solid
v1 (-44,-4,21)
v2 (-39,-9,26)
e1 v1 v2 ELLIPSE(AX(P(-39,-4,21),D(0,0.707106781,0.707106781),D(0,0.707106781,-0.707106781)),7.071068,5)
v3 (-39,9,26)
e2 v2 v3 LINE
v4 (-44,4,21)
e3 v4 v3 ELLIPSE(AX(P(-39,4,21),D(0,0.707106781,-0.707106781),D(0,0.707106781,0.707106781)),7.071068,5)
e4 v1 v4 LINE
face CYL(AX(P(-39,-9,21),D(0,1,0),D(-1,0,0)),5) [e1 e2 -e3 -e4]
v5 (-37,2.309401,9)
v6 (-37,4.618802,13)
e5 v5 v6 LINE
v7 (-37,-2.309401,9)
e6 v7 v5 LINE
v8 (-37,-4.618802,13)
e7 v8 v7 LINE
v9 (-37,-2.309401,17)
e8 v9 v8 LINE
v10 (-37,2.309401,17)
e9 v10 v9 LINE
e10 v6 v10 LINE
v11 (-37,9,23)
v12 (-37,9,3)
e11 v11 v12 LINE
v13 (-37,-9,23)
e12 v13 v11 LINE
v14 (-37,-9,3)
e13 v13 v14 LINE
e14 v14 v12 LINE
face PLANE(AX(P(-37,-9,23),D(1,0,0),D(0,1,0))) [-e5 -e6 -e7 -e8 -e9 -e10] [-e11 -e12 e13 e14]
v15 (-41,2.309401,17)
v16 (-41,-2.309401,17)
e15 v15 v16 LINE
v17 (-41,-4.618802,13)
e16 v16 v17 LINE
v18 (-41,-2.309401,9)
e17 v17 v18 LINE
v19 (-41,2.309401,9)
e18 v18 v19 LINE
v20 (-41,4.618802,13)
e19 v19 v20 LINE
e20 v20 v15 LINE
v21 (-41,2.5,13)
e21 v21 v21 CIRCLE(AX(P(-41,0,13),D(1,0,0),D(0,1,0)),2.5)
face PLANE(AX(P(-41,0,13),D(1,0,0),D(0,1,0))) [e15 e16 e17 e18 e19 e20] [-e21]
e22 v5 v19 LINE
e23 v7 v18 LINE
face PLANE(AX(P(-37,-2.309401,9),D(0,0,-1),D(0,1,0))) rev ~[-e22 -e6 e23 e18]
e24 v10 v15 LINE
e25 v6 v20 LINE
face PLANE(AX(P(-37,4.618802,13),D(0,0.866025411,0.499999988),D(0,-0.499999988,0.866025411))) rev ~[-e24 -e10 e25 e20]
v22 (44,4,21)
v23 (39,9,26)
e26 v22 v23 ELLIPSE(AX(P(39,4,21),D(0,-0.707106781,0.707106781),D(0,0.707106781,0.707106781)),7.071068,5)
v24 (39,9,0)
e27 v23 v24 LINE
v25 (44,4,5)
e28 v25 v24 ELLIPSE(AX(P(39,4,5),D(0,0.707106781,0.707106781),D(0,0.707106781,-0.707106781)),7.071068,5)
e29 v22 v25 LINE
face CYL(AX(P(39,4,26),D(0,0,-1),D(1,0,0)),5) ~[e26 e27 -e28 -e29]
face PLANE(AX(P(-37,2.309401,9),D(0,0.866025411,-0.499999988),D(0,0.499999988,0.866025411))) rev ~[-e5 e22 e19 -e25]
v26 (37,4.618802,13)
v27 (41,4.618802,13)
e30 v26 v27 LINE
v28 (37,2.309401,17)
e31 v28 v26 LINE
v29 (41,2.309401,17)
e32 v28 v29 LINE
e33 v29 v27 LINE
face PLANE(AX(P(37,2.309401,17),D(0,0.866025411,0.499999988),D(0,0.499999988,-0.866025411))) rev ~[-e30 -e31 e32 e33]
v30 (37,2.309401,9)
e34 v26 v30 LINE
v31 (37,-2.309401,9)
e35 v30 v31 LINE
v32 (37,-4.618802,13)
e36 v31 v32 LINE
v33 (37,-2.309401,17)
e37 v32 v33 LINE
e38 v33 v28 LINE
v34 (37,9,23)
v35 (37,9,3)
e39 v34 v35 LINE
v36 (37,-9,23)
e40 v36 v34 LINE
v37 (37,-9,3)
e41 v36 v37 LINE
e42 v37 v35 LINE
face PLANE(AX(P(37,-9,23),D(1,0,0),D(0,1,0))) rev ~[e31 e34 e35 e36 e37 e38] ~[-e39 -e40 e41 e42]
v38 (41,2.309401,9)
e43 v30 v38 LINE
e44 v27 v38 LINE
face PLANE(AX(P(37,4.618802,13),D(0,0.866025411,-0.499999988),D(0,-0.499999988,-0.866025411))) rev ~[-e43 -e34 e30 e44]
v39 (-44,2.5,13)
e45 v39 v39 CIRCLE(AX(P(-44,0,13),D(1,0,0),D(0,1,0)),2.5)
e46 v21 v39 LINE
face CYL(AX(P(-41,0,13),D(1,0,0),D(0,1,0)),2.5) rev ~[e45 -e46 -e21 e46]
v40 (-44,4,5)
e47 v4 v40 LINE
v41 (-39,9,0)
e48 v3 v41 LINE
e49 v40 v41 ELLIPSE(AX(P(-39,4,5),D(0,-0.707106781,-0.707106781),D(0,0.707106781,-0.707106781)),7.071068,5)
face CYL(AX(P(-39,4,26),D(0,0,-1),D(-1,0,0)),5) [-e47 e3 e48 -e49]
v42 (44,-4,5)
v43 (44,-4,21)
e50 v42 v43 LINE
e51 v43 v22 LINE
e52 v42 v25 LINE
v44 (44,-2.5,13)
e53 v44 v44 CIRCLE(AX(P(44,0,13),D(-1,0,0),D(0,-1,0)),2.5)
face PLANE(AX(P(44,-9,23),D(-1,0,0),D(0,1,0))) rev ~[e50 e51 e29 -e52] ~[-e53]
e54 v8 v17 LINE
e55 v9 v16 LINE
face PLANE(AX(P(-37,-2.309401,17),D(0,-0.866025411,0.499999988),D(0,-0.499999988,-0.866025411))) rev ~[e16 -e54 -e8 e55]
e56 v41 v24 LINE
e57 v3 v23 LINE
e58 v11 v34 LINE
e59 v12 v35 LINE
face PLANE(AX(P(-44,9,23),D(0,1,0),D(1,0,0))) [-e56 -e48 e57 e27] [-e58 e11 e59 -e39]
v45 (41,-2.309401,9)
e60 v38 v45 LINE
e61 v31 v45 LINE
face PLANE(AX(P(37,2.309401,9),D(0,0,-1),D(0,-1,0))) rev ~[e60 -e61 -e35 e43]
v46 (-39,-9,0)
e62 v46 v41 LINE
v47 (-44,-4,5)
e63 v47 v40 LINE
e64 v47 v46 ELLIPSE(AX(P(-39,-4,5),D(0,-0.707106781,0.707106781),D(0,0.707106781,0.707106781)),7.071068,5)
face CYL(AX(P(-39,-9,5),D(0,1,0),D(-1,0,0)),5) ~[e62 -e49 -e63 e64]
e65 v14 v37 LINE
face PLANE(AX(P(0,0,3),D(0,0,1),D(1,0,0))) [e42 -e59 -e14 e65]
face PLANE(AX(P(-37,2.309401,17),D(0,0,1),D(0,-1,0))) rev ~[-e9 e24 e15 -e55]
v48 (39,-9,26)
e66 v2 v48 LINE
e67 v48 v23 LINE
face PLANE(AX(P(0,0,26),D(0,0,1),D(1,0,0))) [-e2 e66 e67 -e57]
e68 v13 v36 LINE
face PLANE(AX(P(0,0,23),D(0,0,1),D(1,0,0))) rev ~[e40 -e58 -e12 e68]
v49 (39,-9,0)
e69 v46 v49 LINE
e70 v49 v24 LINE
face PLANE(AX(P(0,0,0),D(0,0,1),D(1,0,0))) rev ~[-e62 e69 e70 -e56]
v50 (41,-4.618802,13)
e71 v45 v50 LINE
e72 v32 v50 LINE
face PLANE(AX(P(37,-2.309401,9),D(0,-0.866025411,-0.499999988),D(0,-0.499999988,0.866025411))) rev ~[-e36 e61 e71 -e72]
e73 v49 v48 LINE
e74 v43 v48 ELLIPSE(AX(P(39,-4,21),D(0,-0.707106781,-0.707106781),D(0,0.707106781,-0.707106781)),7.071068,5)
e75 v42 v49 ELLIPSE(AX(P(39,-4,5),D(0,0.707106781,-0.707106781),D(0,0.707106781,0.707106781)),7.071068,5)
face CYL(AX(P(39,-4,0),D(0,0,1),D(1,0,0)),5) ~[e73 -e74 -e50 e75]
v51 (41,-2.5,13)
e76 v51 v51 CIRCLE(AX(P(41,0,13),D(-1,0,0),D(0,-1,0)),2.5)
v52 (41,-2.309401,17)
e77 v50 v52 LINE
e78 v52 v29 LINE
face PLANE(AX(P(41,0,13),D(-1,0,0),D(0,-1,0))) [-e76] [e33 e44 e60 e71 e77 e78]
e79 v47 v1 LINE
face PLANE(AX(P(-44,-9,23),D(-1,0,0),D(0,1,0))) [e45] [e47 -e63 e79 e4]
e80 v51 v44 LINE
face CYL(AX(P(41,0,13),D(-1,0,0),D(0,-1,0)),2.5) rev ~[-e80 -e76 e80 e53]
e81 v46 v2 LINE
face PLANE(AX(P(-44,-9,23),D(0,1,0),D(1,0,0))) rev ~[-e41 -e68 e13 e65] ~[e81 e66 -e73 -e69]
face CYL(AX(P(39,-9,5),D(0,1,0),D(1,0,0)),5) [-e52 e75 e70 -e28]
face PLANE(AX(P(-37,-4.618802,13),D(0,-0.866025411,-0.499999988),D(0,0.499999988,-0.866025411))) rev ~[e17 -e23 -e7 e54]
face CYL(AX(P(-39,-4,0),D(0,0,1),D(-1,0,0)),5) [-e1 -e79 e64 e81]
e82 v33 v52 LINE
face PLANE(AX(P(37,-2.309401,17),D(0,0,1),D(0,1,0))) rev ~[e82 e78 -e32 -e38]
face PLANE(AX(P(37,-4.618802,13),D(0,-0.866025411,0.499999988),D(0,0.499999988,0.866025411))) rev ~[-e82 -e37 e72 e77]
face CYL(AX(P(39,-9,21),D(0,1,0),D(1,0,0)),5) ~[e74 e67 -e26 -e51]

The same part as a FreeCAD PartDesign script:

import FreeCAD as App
import Part
import Sketcher
from FreeCAD import Vector
Q = App.Units.Quantity


def edges_at(feature, points):
    """Names of the edges that pass closest to the given points."""
    edges = feature.Shape.Edges
    near = lambda p: min(range(len(edges)), key=lambda i: edges[i].distToShape(Part.Vertex(*p))[0])
    return sorted({f"Edge{near(p) + 1}" for p in points})

doc = App.newDocument("Part")
body = doc.addObject("PartDesign::Body", "Body")

# Sketch on XY plane
sketch1 = body.newObject("Sketcher::SketchObject", "Sketch")
sketch1.AttachmentSupport = (doc.getObject("XY_Plane"), [""])
sketch1.MapMode = "FlatFace"
sketch1.addGeometry([
    Part.LineSegment(Vector(-44, 9, 0), Vector(-44, -9, 0)),
    Part.LineSegment(Vector(-44, -9, 0), Vector(44, -9, 0)),
    Part.LineSegment(Vector(44, -9, 0), Vector(44, 9, 0)),
    Part.LineSegment(Vector(44, 9, 0), Vector(-44, 9, 0)),
], False)
sketch1.addConstraint([
    Sketcher.Constraint("Coincident", 0, 2, 1, 1),
    Sketcher.Constraint("Coincident", 1, 2, 2, 1),
    Sketcher.Constraint("Coincident", 2, 2, 3, 1),
    Sketcher.Constraint("Coincident", 3, 2, 0, 1),
    Sketcher.Constraint("Vertical", 0),
    Sketcher.Constraint("Horizontal", 1),
    Sketcher.Constraint("Vertical", 2),
    Sketcher.Constraint("Horizontal", 3),
    Sketcher.Constraint("Symmetric", 0, 2, 2, 2, -1, 1),
    Sketcher.Constraint("DistanceX", 1, 1, 1, 2, Q("88 mm")),
    Sketcher.Constraint("DistanceY", 0, 2, 0, 1, Q("18 mm")),
])
pad1 = body.newObject("PartDesign::Pad", "Pad")
pad1.Profile = sketch1
pad1.Length = 23

# Sketch on XY plane
sketch2 = body.newObject("Sketcher::SketchObject", "Sketch001")
sketch2.AttachmentSupport = (doc.getObject("XY_Plane"), [""])
sketch2.MapMode = "FlatFace"
sketch2.AttachmentOffset = App.Placement(Vector(0, 0, 23), App.Rotation())
sketch2.addGeometry([
    Part.LineSegment(Vector(-37, 9, 0), Vector(-37, -9, 0)),
    Part.LineSegment(Vector(-37, -9, 0), Vector(37, -9, 0)),
    Part.LineSegment(Vector(37, -9, 0), Vector(37, 9, 0)),
    Part.LineSegment(Vector(37, 9, 0), Vector(-37, 9, 0)),
], False)
sketch2.addConstraint([
    Sketcher.Constraint("Coincident", 0, 2, 1, 1),
    Sketcher.Constraint("Coincident", 1, 2, 2, 1),
    Sketcher.Constraint("Coincident", 2, 2, 3, 1),
    Sketcher.Constraint("Coincident", 3, 2, 0, 1),
    Sketcher.Constraint("Vertical", 0),
    Sketcher.Constraint("Horizontal", 1),
    Sketcher.Constraint("Vertical", 2),
    Sketcher.Constraint("Horizontal", 3),
    Sketcher.Constraint("Symmetric", 0, 2, 2, 2, -1, 1),
    Sketcher.Constraint("DistanceX", 1, 1, 1, 2, Q("74 mm")),
    Sketcher.Constraint("DistanceY", 0, 2, 0, 1, Q("18 mm")),
])
pocket1 = body.newObject("PartDesign::Pocket", "Pocket")
pocket1.Profile = sketch2
pocket1.Length = 20

# Sketch on YZ plane
sketch3 = body.newObject("Sketcher::SketchObject", "Sketch002")
sketch3.AttachmentSupport = (doc.getObject("YZ_Plane"), [""])
sketch3.MapMode = "FlatFace"
sketch3.AttachmentOffset = App.Placement(Vector(0, 0, 37), App.Rotation())
sketch3.addGeometry([
    Part.LineSegment(Vector(2.309401, 9, 0), Vector(-2.309401, 9, 0)),  # 0
    Part.LineSegment(Vector(-2.309401, 9, 0), Vector(-4.618802, 13, 0)),  # 1
    Part.LineSegment(Vector(-4.618802, 13, 0), Vector(-2.309401, 17, 0)),  # 2
    Part.LineSegment(Vector(-2.309401, 17, 0), Vector(2.309401, 17, 0)),  # 3
    Part.LineSegment(Vector(2.309401, 17, 0), Vector(4.618802, 13, 0)),  # 4
    Part.LineSegment(Vector(4.618802, 13, 0), Vector(2.309401, 9, 0)),  # 5
], False)
sketch3.addConstraint([
    Sketcher.Constraint("Coincident", 0, 2, 1, 1),
    Sketcher.Constraint("Coincident", 1, 2, 2, 1),
    Sketcher.Constraint("Coincident", 2, 2, 3, 1),
    Sketcher.Constraint("Coincident", 3, 2, 4, 1),
    Sketcher.Constraint("Coincident", 4, 2, 5, 1),
    Sketcher.Constraint("Coincident", 5, 2, 0, 1),
    Sketcher.Constraint("Horizontal", 0),
    Sketcher.Constraint("Horizontal", 3),
    Sketcher.Constraint("Symmetric", 1, 2, 4, 2, -2),
    Sketcher.Constraint("Parallel", 1, 4),
    Sketcher.Constraint("Parallel", 2, 5),
    Sketcher.Constraint("Vertical", 0, 2, 2, 2),
    Sketcher.Constraint("Vertical", 3, 2, 5, 2),
    Sketcher.Constraint("Angle", 1, Q("119.999999 deg")),
    Sketcher.Constraint("DistanceY", -1, 1, 0, 2, Q("9 mm")),
    Sketcher.Constraint("DistanceY", -1, 1, 1, 2, Q("13 mm")),
    Sketcher.Constraint("DistanceX", 0, 2, 0, 1, Q("4.618802 mm")),
])
pocket2 = body.newObject("PartDesign::Pocket", "Pocket001")
pocket2.Profile = sketch3
pocket2.Length = 4
pocket2.Reversed = True

# Sketch on YZ plane
sketch4 = body.newObject("Sketcher::SketchObject", "Sketch003")
sketch4.AttachmentSupport = (doc.getObject("YZ_Plane"), [""])
sketch4.MapMode = "FlatFace"
sketch4.AttachmentOffset = App.Placement(Vector(0, 0, -37), App.Rotation())
sketch4.addGeometry([
    Part.LineSegment(Vector(-2.309401, 9, 0), Vector(2.309401, 9, 0)),  # 0
    Part.LineSegment(Vector(2.309401, 9, 0), Vector(4.618802, 13, 0)),  # 1
    Part.LineSegment(Vector(4.618802, 13, 0), Vector(2.309401, 17, 0)),  # 2
    Part.LineSegment(Vector(2.309401, 17, 0), Vector(-2.309401, 17, 0)),  # 3
    Part.LineSegment(Vector(-2.309401, 17, 0), Vector(-4.618802, 13, 0)),  # 4
    Part.LineSegment(Vector(-4.618802, 13, 0), Vector(-2.309401, 9, 0)),  # 5
], False)
sketch4.addConstraint([
    Sketcher.Constraint("Coincident", 0, 2, 1, 1),
    Sketcher.Constraint("Coincident", 1, 2, 2, 1),
    Sketcher.Constraint("Coincident", 2, 2, 3, 1),
    Sketcher.Constraint("Coincident", 3, 2, 4, 1),
    Sketcher.Constraint("Coincident", 4, 2, 5, 1),
    Sketcher.Constraint("Coincident", 5, 2, 0, 1),
    Sketcher.Constraint("Horizontal", 0),
    Sketcher.Constraint("Horizontal", 3),
    Sketcher.Constraint("Symmetric", 1, 2, 4, 2, -2),
    Sketcher.Constraint("Parallel", 1, 4),
    Sketcher.Constraint("Parallel", 2, 5),
    Sketcher.Constraint("Vertical", 0, 2, 2, 2),
    Sketcher.Constraint("Vertical", 3, 2, 5, 2),
    Sketcher.Constraint("Angle", 1, Q("60.000001 deg")),
    Sketcher.Constraint("DistanceY", -1, 1, 0, 2, Q("9 mm")),
    Sketcher.Constraint("DistanceY", -1, 1, 1, 2, Q("13 mm")),
    Sketcher.Constraint("DistanceX", 0, 1, 0, 2, Q("4.618802 mm")),
])
pocket3 = body.newObject("PartDesign::Pocket", "Pocket002")
pocket3.Profile = sketch4
pocket3.Length = 4

# Sketch on YZ plane
sketch5 = body.newObject("Sketcher::SketchObject", "Sketch004")
sketch5.AttachmentSupport = (doc.getObject("YZ_Plane"), [""])
sketch5.MapMode = "FlatFace"
sketch5.AttachmentOffset = App.Placement(Vector(0, 0, 41), App.Rotation())
sketch5.addGeometry(Part.Circle(Vector(0, 13, 0), Vector(0, 0, 1), 2.5), False)
sketch5.addConstraint([
    Sketcher.Constraint("PointOnObject", 0, 3, -2),
    Sketcher.Constraint("Diameter", 0, Q("5 mm")),
    Sketcher.Constraint("DistanceY", -1, 1, 0, 3, Q("13 mm")),
])
pocket4 = body.newObject("PartDesign::Pocket", "Pocket003")
pocket4.Profile = sketch5
pocket4.Type = "ThroughAll"
pocket4.Reversed = True

# Sketch on YZ plane
sketch6 = body.newObject("Sketcher::SketchObject", "Sketch005")
sketch6.AttachmentSupport = (doc.getObject("YZ_Plane"), [""])
sketch6.MapMode = "FlatFace"
sketch6.AttachmentOffset = App.Placement(Vector(0, 0, -41), App.Rotation())
sketch6.addGeometry(Part.Circle(Vector(0, 13, 0), Vector(0, 0, 1), 2.5), False)
sketch6.addConstraint([
    Sketcher.Constraint("PointOnObject", 0, 3, -2),
    Sketcher.Constraint("Diameter", 0, Q("5 mm")),
    Sketcher.Constraint("DistanceY", -1, 1, 0, 3, Q("13 mm")),
])
pocket5 = body.newObject("PartDesign::Pocket", "Pocket004")
pocket5.Profile = sketch6
pocket5.Type = "ThroughAll"
body2 = doc.addObject("PartDesign::Body", "Body001")

# Sketch on XY plane
sketch7 = body2.newObject("Sketcher::SketchObject", "Sketch006")
sketch7.AttachmentSupport = (doc.getObject("XY_Plane001"), [""])
sketch7.MapMode = "FlatFace"
sketch7.AttachmentOffset = App.Placement(Vector(0, 0, 23), App.Rotation())
sketch7.addGeometry([
    Part.LineSegment(Vector(-44, 9, 0), Vector(-44, -9, 0)),
    Part.LineSegment(Vector(-44, -9, 0), Vector(44, -9, 0)),
    Part.LineSegment(Vector(44, -9, 0), Vector(44, 9, 0)),
    Part.LineSegment(Vector(44, 9, 0), Vector(-44, 9, 0)),
], False)
sketch7.addConstraint([
    Sketcher.Constraint("Coincident", 0, 2, 1, 1),
    Sketcher.Constraint("Coincident", 1, 2, 2, 1),
    Sketcher.Constraint("Coincident", 2, 2, 3, 1),
    Sketcher.Constraint("Coincident", 3, 2, 0, 1),
    Sketcher.Constraint("Vertical", 0),
    Sketcher.Constraint("Horizontal", 1),
    Sketcher.Constraint("Vertical", 2),
    Sketcher.Constraint("Horizontal", 3),
    Sketcher.Constraint("Symmetric", 0, 2, 2, 2, -1, 1),
    Sketcher.Constraint("DistanceX", 1, 1, 1, 2, Q("88 mm")),
    Sketcher.Constraint("DistanceY", 0, 2, 0, 1, Q("18 mm")),
])
pad2 = body2.newObject("PartDesign::Pad", "Pad001")
pad2.Profile = sketch7
pad2.Length = 3
doc.recompute()

boolean = body.newObject("PartDesign::Boolean", "Boolean")
boolean.Type = "Fuse"
boolean.addObjects([body2])
doc.recompute()

fillet = body.newObject("PartDesign::Fillet", "Fillet")
fillet.Base = (boolean, edges_at(boolean, [
    (-44, 0, 26),
    (-44, 0, 0),
    (44, 0, 26),
    (44, 0, 0),
    (-44, -9, 13),
    (-44, 9, 13),
    (44, -9, 13),
    (44, 9, 13),
]))
fillet.Radius = 5

doc.recompute()
